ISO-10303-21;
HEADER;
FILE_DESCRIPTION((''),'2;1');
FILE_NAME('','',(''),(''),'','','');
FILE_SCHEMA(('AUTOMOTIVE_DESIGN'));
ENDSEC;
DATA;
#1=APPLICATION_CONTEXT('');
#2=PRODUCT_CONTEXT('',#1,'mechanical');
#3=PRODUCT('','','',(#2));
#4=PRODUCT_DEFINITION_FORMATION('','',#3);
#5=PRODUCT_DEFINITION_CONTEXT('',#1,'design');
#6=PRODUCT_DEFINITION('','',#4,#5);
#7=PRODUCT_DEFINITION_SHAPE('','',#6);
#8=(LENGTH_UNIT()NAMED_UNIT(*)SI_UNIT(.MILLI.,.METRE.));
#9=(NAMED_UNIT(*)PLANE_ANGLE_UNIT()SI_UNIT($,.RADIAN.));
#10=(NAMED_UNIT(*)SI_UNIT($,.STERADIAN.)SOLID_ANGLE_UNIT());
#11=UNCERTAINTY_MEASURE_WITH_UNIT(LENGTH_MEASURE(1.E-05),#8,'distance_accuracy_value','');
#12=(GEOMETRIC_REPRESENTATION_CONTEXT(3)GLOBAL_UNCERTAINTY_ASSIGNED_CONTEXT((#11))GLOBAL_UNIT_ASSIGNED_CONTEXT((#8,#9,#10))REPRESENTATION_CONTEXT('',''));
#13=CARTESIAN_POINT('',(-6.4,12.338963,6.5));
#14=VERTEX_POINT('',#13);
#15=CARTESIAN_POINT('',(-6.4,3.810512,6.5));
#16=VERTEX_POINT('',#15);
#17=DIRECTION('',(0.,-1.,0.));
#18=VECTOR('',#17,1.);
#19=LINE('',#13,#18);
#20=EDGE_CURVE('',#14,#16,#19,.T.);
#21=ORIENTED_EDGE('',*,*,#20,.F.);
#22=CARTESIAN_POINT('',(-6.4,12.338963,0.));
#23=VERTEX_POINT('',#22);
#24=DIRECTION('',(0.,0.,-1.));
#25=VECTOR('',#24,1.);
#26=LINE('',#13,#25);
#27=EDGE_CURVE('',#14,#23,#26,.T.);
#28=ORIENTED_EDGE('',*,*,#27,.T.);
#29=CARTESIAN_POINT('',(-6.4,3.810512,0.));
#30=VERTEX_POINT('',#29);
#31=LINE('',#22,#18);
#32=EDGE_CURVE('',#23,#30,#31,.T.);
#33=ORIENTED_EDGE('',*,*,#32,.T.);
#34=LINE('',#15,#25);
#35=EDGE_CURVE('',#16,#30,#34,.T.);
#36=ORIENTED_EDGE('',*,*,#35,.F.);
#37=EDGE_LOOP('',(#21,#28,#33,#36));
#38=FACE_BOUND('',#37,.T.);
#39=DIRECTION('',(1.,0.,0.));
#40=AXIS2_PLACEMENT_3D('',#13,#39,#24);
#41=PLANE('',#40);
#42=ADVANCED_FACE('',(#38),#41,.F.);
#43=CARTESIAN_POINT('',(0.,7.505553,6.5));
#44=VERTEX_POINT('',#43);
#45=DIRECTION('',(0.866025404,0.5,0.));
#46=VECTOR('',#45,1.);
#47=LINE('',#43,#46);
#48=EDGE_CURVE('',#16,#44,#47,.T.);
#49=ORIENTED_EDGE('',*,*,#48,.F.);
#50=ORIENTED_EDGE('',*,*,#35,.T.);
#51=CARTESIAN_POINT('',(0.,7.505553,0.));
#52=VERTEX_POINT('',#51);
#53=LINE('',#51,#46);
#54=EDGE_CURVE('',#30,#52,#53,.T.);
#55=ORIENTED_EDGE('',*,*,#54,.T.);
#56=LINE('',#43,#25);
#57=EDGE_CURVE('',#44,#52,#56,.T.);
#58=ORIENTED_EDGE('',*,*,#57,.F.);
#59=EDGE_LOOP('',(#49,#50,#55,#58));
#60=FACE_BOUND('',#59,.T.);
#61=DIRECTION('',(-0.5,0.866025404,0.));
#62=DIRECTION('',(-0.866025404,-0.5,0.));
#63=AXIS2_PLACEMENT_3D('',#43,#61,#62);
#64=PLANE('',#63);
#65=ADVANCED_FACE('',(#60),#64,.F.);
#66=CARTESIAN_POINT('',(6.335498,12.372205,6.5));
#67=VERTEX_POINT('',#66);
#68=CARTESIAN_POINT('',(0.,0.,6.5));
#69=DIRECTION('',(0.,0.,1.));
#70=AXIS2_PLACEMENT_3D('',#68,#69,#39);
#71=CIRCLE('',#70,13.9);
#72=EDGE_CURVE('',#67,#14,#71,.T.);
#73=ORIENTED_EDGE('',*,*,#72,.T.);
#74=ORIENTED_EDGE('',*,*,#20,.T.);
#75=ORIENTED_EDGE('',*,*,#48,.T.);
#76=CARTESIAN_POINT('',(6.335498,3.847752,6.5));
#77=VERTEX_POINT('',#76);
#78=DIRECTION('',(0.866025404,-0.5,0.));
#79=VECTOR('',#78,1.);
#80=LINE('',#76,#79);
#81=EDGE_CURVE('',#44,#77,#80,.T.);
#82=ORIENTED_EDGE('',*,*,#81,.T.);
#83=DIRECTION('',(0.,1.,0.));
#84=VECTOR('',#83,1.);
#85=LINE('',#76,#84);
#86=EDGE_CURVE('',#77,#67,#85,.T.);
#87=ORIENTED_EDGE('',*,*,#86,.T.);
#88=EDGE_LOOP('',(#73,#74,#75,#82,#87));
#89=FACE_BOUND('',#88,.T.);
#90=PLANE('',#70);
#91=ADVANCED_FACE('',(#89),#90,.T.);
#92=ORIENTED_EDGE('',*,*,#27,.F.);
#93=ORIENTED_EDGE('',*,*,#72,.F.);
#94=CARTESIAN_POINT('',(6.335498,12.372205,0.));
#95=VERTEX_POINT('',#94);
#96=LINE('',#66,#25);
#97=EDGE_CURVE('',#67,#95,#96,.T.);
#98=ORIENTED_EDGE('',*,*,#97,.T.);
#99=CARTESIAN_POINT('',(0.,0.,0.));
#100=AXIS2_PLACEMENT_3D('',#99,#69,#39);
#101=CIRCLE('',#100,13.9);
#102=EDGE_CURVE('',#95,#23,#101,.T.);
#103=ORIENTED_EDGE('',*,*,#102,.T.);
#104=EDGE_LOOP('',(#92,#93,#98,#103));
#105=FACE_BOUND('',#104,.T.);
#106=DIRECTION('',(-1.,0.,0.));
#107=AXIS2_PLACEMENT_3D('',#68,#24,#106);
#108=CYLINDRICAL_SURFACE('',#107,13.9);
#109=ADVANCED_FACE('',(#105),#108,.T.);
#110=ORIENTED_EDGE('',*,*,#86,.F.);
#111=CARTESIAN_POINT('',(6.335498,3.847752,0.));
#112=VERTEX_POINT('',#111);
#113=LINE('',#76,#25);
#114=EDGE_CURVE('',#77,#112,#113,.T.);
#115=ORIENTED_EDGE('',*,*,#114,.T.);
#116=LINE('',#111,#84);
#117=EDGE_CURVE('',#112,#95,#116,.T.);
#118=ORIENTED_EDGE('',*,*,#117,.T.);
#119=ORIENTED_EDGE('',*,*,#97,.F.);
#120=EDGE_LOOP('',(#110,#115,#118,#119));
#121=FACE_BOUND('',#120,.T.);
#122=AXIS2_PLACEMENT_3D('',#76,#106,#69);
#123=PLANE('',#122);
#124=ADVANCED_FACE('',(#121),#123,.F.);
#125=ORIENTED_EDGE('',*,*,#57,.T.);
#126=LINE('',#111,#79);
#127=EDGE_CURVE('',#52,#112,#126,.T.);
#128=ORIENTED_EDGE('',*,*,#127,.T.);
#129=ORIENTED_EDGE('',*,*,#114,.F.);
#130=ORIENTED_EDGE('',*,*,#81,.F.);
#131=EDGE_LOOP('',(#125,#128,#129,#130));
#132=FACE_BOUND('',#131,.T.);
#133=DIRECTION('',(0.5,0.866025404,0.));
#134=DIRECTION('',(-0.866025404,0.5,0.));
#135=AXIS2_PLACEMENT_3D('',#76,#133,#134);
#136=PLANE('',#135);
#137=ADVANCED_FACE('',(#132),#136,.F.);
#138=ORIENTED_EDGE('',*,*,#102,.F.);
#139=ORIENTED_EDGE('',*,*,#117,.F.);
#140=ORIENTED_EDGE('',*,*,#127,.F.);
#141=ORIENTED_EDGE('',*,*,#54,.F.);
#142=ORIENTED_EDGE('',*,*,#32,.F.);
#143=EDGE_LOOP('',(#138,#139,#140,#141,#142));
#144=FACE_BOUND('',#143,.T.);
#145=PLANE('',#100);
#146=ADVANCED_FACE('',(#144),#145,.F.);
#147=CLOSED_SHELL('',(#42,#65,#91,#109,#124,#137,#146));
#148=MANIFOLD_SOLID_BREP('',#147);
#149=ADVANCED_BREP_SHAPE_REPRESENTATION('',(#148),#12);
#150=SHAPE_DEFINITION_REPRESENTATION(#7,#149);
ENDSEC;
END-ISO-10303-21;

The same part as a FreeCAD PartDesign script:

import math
import FreeCAD as App
import Part
import Sketcher
Q = App.Units.Quantity

doc = App.newDocument("Part")
body = doc.addObject("PartDesign::Body", "Body")

# Sketch on XY plane
sketch1 = doc.addObject("Sketcher::SketchObject", "Sketch")
body.addObject(sketch1)
sketch1.AttachmentSupport = (doc.XY_Plane, [""])
sketch1.MapMode = "FlatFace"
sketch1.addGeometry([
    Part.LineSegment(App.Vector(0, 7.505553, 0), App.Vector(6.335498, 3.847752, 0)),  # 0
    Part.LineSegment(App.Vector(6.335498, 3.847752, 0), App.Vector(6.335498, 12.372205, 0)),  # 1
    Part.ArcOfCircle(Part.Circle(App.Vector(0, 0, 0), App.Vector(0, 0, 1), 13.9), math.radians(62.884145), math.radians(117.414965)),  # 2
    Part.LineSegment(App.Vector(-6.4, 12.338963, 0), App.Vector(-6.4, 3.810512, 0)),  # 3
    Part.LineSegment(App.Vector(-6.4, 3.810512, 0), App.Vector(0, 7.505553, 0)),  # 4
], False)
sketch1.addConstraint([
    Sketcher.Constraint("Coincident", 0, 2, 1, 1),
    Sketcher.Constraint("Coincident", 1, 2, 2, 1),
    Sketcher.Constraint("Coincident", 2, 2, 3, 1),
    Sketcher.Constraint("Coincident", 3, 2, 4, 1),
    Sketcher.Constraint("Coincident", 4, 2, 0, 1),
    Sketcher.Constraint("Vertical", 1),
    Sketcher.Constraint("Vertical", 3),
    Sketcher.Constraint("Coincident", 2, 3, -1, 1),
    Sketcher.Constraint("PointOnObject", 4, 2, -2),
    Sketcher.Constraint("Radius", 2, 13.9),
    Sketcher.Constraint("Angle", 0, Q("-30 deg")),
    Sketcher.Constraint("Angle", 4, Q("30 deg")),
    Sketcher.Constraint("DistanceX", 2, 2, -1, 1, 6.4),
    Sketcher.Constraint("DistanceY", 3, 2, 3, 1, 8.528451),
    Sketcher.Constraint("DistanceX", -1, 1, 0, 2, 6.335498),
])
pad1 = doc.addObject("PartDesign::Pad", "Pad")
body.addObject(pad1)
pad1.Profile = sketch1
pad1.Length = 6.5

doc.recompute()
